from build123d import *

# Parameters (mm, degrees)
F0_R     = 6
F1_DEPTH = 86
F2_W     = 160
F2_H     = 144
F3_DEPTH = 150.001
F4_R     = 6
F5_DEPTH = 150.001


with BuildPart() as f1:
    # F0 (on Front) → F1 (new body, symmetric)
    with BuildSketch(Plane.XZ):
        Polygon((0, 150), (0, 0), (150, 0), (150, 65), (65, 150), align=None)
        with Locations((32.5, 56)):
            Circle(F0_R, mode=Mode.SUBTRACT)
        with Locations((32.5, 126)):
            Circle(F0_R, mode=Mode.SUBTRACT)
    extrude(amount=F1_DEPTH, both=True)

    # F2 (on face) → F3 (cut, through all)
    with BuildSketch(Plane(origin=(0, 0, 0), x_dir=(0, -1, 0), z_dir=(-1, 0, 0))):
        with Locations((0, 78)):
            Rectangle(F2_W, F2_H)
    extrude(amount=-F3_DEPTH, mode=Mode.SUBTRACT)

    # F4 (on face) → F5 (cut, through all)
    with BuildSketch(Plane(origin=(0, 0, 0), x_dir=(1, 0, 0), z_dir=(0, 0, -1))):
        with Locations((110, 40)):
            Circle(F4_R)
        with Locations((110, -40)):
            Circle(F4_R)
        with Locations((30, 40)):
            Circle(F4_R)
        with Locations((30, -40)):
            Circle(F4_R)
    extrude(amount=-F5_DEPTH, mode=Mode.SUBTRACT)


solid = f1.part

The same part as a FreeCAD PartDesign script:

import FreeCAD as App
import Part
import Sketcher
Q = App.Units.Quantity


def add_polygon(sketch, points):
    """Adds a closed chain of lines whose ends are joined by coincident constraints."""
    first, n = sketch.GeometryCount, len(points)
    for a, b in zip(points, points[1:] + points[:1]):
        sketch.addGeometry(Part.LineSegment(App.Vector(*a, 0), App.Vector(*b, 0)), False)
    for i in range(n):
        sketch.addConstraint(Sketcher.Constraint("Coincident", first + i, 2, first + (i + 1) % n, 1))

doc = App.newDocument("Part")
body = doc.addObject("PartDesign::Body", "Body")

sketch1 = body.newObject("Sketcher::SketchObject", "Sketch")
sketch1.AttachmentSupport = (doc.getObject("XZ_Plane"), [""])
sketch1.MapMode = "FlatFace"
add_polygon(sketch1, [(0, 150), (0, 0), (150, 0), (150, 65), (65, 150)])
sketch1.addGeometry(Part.Circle(App.Vector(32, 56, 0), App.Vector(0, 0, 1), 6), False)
sketch1.addGeometry(Part.Circle(App.Vector(32, 126, 0), App.Vector(0, 0, 1), 6), False)
sketch1.addConstraint(Sketcher.Constraint("Vertical", 0))
sketch1.addConstraint(Sketcher.Constraint("Horizontal", 1))
sketch1.addConstraint(Sketcher.Constraint("Vertical", 2))
sketch1.addConstraint(Sketcher.Constraint("Horizontal", 4))
sketch1.addConstraint(Sketcher.Constraint("Coincident", 0, 2, -1, 1))
sketch1.addConstraint(Sketcher.Constraint("Equal", 5, 6))
sketch1.addConstraint(Sketcher.Constraint("Vertical", 5, 3, 6, 3))
sketch1.addConstraint(Sketcher.Constraint("Equal", 1, 0))
sketch1.addConstraint(Sketcher.Constraint("Equal", 4, 2))
sketch1.addConstraint(Sketcher.Constraint("Diameter", 5, Q("12 mm")))
sketch1.addConstraint(Sketcher.Constraint("DistanceX", 1, 1, 1, 2, Q("150 mm")))
sketch1.addConstraint(Sketcher.Constraint("DistanceX", 4, 2, 4, 1, Q("65 mm")))
sketch1.addConstraint(Sketcher.Constraint("DistanceY", -1, 1, 5, 3, Q("56 mm")))
sketch1.addConstraint(Sketcher.Constraint("DistanceY", -1, 1, 6, 3, Q("126 mm")))
sketch1.addConstraint(Sketcher.Constraint("DistanceX", -1, 1, 5, 3, Q("32.5 mm")))
pad1 = body.newObject("PartDesign::Pad", "Pad")
pad1.Profile = sketch1
pad1.Length = 172
pad1.Midplane = True

sketch2 = body.newObject("Sketcher::SketchObject", "Sketch001")
sketch2.AttachmentSupport = (doc.getObject("YZ_Plane"), [""])
sketch2.MapMode = "FlatFace"
add_polygon(sketch2, [(80, 150), (80, 6), (-80, 6), (-80, 150)])
sketch2.addConstraint(Sketcher.Constraint("Vertical", 0))
sketch2.addConstraint(Sketcher.Constraint("Horizontal", 1))
sketch2.addConstraint(Sketcher.Constraint("Vertical", 2))
sketch2.addConstraint(Sketcher.Constraint("Horizontal", 3))
sketch2.addConstraint(Sketcher.Constraint("DistanceX", 1, 2, 1, 1, Q("160 mm")))
sketch2.addConstraint(Sketcher.Constraint("DistanceY", 0, 2, 0, 1, Q("144 mm")))
sketch2.addConstraint(Sketcher.Constraint("DistanceX", -1, 1, 0, 2, Q("80 mm")))
sketch2.addConstraint(Sketcher.Constraint("DistanceY", -1, 1, 0, 2, Q("6 mm")))
pocket1 = body.newObject("PartDesign::Pocket", "Pocket")
pocket1.Profile = sketch2
pocket1.Type = "ThroughAll"
pocket1.Reversed = True

sketch3 = body.newObject("Sketcher::SketchObject", "Sketch002")
sketch3.AttachmentSupport = (doc.getObject("XY_Plane"), [""])
sketch3.MapMode = "FlatFace"
sketch3.addGeometry(Part.Circle(App.Vector(110, -40, 0), App.Vector(0, 0, 1), 6), False)
sketch3.addGeometry(Part.Circle(App.Vector(110, 40, 0), App.Vector(0, 0, 1), 6), False)
sketch3.addGeometry(Part.Circle(App.Vector(30, -40, 0), App.Vector(0, 0, 1), 6), False)
sketch3.addGeometry(Part.Circle(App.Vector(30, 40, 0), App.Vector(0, 0, 1), 6), False)
sketch3.addConstraint(Sketcher.Constraint("Equal", 0, 1))
sketch3.addConstraint(Sketcher.Constraint("Equal", 1, 2))
sketch3.addConstraint(Sketcher.Constraint("Equal", 2, 3))
sketch3.addConstraint(Sketcher.Constraint("Symmetric", 0, 3, 1, 3, -1))
sketch3.addConstraint(Sketcher.Constraint("Symmetric", 2, 3, 3, 3, -1))
sketch3.addConstraint(Sketcher.Constraint("Horizontal", 0, 3, 2, 3))
sketch3.addConstraint(Sketcher.Constraint("Diameter", 0, Q("12 mm")))
sketch3.addConstraint(Sketcher.Constraint("DistanceX", -1, 1, 0, 3, Q("110 mm")))
sketch3.addConstraint(Sketcher.Constraint("DistanceY", 0, 3, -1, 1, Q("40 mm")))
sketch3.addConstraint(Sketcher.Constraint("DistanceX", -1, 1, 2, 3, Q("30 mm")))
pocket2 = body.newObject("PartDesign::Pocket", "Pocket001")
pocket2.Profile = sketch3
pocket2.Type = "ThroughAll"
pocket2.Reversed = True

doc.recompute()
